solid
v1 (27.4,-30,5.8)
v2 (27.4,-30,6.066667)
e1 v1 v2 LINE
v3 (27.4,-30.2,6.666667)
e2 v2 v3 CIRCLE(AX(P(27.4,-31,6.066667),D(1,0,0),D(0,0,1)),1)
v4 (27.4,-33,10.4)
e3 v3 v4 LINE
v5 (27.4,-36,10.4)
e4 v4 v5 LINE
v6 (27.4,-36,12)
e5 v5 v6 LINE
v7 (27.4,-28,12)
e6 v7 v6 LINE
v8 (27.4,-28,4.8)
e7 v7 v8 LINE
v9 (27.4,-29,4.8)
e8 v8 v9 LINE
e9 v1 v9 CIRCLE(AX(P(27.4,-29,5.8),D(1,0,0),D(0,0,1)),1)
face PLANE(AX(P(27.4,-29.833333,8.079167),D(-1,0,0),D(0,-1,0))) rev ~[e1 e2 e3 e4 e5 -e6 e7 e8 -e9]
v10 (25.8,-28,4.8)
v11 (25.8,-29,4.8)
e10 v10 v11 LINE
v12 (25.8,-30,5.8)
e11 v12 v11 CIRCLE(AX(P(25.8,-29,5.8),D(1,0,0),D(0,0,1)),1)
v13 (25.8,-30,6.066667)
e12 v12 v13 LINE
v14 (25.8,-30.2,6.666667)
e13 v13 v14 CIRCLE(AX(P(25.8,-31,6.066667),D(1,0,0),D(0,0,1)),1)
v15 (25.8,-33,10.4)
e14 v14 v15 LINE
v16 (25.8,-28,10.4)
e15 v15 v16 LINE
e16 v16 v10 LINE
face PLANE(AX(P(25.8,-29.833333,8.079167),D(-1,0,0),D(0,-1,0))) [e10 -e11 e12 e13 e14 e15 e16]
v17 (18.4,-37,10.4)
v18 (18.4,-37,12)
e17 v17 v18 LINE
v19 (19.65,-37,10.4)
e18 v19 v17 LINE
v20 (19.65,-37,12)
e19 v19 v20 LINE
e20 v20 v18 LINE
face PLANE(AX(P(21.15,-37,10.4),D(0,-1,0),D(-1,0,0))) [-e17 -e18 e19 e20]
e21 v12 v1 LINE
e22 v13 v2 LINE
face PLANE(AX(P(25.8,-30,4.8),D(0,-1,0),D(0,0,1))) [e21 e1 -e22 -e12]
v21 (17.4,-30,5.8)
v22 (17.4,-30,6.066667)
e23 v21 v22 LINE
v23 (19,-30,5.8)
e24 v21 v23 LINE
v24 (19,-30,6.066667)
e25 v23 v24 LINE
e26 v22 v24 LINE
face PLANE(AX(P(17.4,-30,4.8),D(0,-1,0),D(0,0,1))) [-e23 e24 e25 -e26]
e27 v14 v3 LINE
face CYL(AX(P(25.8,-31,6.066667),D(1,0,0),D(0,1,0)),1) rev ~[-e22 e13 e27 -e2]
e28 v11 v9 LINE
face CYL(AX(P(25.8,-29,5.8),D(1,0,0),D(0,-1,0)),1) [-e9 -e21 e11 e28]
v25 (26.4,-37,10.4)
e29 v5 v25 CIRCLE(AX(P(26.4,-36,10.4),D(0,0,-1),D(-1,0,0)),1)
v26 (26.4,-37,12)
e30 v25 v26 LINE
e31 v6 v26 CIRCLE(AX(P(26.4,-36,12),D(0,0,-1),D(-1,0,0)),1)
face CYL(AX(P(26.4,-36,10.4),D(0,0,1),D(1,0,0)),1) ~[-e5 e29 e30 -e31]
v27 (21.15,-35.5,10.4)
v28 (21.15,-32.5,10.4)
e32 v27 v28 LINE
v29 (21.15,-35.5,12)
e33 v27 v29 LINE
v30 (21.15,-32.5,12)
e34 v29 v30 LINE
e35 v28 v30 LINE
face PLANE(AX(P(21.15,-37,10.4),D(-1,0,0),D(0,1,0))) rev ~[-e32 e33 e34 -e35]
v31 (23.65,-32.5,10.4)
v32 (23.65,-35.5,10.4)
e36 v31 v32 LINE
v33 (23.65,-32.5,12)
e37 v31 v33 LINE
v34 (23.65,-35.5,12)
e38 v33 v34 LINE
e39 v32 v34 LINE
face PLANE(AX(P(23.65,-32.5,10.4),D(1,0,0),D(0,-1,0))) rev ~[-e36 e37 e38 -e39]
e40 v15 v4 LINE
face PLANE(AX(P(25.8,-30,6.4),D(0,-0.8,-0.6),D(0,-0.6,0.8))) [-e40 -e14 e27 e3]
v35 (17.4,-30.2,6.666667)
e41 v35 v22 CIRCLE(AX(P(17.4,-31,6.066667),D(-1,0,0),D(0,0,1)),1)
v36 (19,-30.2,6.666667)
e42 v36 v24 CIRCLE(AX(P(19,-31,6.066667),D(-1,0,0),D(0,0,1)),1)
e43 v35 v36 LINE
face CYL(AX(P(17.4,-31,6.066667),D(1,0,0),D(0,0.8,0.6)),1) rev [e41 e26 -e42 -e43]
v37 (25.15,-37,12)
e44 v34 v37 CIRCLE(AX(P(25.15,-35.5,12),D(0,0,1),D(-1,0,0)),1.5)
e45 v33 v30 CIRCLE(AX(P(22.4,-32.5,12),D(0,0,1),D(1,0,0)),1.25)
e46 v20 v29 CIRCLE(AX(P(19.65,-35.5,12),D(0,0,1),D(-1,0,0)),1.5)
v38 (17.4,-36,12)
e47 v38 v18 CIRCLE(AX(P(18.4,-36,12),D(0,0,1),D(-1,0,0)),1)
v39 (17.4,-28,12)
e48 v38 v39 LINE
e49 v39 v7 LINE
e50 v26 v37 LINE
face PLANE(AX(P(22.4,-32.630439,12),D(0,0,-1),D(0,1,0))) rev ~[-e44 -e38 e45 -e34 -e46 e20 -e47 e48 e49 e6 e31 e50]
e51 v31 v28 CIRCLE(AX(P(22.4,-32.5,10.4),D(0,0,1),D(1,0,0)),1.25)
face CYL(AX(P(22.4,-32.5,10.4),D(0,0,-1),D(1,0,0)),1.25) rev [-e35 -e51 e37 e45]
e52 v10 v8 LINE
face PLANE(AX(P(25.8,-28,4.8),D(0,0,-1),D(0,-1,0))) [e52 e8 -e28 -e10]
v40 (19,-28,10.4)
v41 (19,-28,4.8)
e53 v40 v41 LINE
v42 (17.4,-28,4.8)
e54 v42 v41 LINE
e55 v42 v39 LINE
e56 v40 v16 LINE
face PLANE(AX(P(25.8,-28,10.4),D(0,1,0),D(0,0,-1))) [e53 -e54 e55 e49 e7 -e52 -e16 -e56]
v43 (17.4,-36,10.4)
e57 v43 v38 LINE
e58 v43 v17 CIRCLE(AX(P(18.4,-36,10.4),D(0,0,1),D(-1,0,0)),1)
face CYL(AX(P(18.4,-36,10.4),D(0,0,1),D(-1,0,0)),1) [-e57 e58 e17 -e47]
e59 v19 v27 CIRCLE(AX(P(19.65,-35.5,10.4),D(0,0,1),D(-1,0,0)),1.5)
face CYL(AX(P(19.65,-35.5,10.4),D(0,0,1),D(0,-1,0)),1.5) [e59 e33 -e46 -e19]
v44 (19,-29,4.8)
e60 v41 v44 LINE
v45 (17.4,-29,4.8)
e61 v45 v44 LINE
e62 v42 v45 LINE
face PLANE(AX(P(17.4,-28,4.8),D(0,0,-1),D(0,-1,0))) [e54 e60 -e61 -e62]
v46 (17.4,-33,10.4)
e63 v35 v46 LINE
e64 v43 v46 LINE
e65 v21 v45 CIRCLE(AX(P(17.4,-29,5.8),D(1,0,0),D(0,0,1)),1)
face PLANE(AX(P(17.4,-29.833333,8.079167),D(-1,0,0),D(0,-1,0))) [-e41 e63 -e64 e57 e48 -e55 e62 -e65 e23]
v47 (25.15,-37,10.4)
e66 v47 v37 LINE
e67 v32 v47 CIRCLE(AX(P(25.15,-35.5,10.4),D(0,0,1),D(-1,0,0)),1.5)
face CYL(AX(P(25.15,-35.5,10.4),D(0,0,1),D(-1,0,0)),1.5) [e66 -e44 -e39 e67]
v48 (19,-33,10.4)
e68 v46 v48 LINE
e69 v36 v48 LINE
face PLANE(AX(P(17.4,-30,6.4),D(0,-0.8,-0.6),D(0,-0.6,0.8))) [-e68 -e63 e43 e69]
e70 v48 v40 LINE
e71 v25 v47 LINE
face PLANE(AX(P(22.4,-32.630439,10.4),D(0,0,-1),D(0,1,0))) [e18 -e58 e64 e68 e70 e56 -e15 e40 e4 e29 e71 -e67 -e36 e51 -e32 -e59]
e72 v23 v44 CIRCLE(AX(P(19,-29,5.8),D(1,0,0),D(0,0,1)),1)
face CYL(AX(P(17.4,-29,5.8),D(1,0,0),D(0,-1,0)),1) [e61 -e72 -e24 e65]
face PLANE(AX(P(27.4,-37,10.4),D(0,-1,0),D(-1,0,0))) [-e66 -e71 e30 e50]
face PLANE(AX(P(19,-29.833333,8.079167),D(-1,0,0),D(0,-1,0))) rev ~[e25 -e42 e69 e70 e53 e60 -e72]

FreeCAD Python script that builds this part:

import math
import FreeCAD as App
import Part
import Sketcher

V = App.Vector
Q = App.Units.Quantity


def edges_at(feature, points):
    """Names of the edges that pass closest to the given points."""
    edges = feature.Shape.Edges
    near = lambda p: min(range(len(edges)), key=lambda i: edges[i].distToShape(Part.Vertex(*p))[0])
    return sorted({f"Edge{near(p) + 1}" for p in points})


def add_polygon(sketch, points):
    """Adds a closed chain of lines whose ends are joined by coincident constraints."""
    first, n = sketch.GeometryCount, len(points)
    for a, b in zip(points, points[1:] + points[:1]):
        sketch.addGeometry(Part.LineSegment(App.Vector(*a, 0), App.Vector(*b, 0)), False)
    for i in range(n):
        sketch.addConstraint(Sketcher.Constraint("Coincident", first + i, 2, first + (i + 1) % n, 1))

doc = App.newDocument("Part")
body = doc.addObject("PartDesign::Body", "Body")

# Sketch on XY plane
sketch1 = body.newObject("Sketcher::SketchObject", "Sketch")
sketch1.AttachmentSupport = (doc.getObject("XY_Plane"), [""])
sketch1.MapMode = "FlatFace"
sketch1.addGeometry([
    Part.LineSegment(V(4.5, 5, 0), V(-4.5, 5, 0)),  # 0
    Part.LineSegment(V(-4.5, 5, 0), V(-4.5, -5, 0)),  # 1
    Part.LineSegment(V(-4.5, -5, 0), V(4.5, -5, 0)),  # 2
    Part.LineSegment(V(4.5, -5, 0), V(4.5, -1.2, 0)),  # 3
    Part.LineSegment(V(4.5, -1.2, 0), V(0, -1.2, 0)),  # 4
    Part.ArcOfCircle(Part.Circle(V(0, 0, 0), V(0, 0, 1), 1.2), math.radians(90), math.radians(270)),  # 5
    Part.LineSegment(V(0, 1.2, 0), V(4.5, 1.2, 0)),  # 6
    Part.LineSegment(V(4.5, 1.2, 0), V(4.5, 5, 0)),  # 7
], False)
sketch1.addConstraint([
    Sketcher.Constraint("Coincident", 0, 2, 1, 1),
    Sketcher.Constraint("Coincident", 1, 2, 2, 1),
    Sketcher.Constraint("Coincident", 2, 2, 3, 1),
    Sketcher.Constraint("Coincident", 3, 2, 4, 1),
    Sketcher.Constraint("Tangent", 4, 2, 5, 2),
    Sketcher.Constraint("Tangent", 5, 1, 6, 1),
    Sketcher.Constraint("Coincident", 6, 2, 7, 1),
    Sketcher.Constraint("Coincident", 7, 2, 0, 1),
    Sketcher.Constraint("Horizontal", 0),
    Sketcher.Constraint("Vertical", 1),
    Sketcher.Constraint("Horizontal", 2),
    Sketcher.Constraint("Vertical", 3),
    Sketcher.Constraint("Horizontal", 4),
    Sketcher.Constraint("Horizontal", 6),
    Sketcher.Constraint("Vertical", 7),
    Sketcher.Constraint("Coincident", 5, 3, -1, 1),
    Sketcher.Constraint("Symmetric", 0, 2, 2, 2, -1, 1),
    Sketcher.Constraint("Vertical", 3, 2, 6, 2),
    Sketcher.Constraint("DistanceX", 0, 2, 0, 1, Q("9 mm")),
    Sketcher.Constraint("DistanceY", 1, 2, 1, 1, Q("10 mm")),
    Sketcher.Constraint("Radius", 5, Q("1.25 mm")),
])
pad1 = body.newObject("PartDesign::Pad", "Pad")
pad1.Profile = sketch1
pad1.Length = 1.6

# Sketch on XZ plane
sketch2 = body.newObject("Sketcher::SketchObject", "Sketch001")
sketch2.AttachmentSupport = (doc.getObject("XZ_Plane"), [""])
sketch2.MapMode = "FlatFace"
sketch2.AttachmentOffset = App.Placement(V(0, 0, 5), App.Rotation())
add_polygon(sketch2, [(-4.5, 0), (-4.5, -5.6), (-2.5, -5.6), (-2.5, -4), (0.5, 0)])  # lines 0-4
sketch2.addConstraint([
    Sketcher.Constraint("Vertical", 0),
    Sketcher.Constraint("Horizontal", 1),
    Sketcher.Constraint("Vertical", 2),
    Sketcher.Constraint("Horizontal", 4),
    Sketcher.Constraint("PointOnObject", 3, 2, -1),
    Sketcher.Constraint("DistanceX", 1, 1, 1, 2, Q("2 mm")),
    Sketcher.Constraint("DistanceX", 4, 2, 4, 1, Q("5 mm")),
    Sketcher.Constraint("Distance", 3, Q("5 mm")),
    Sketcher.Constraint("DistanceY", 0, 2, 0, 1, Q("5.6 mm")),
    Sketcher.Constraint("DistanceX", 0, 2, -1, 1, Q("4.5 mm")),
])
pad2 = body.newObject("PartDesign::Pad", "Pad001")
pad2.Profile = sketch2
pad2.Length = 1.6
pad2.Reversed = True
doc.recompute()

linearpattern = body.newObject("PartDesign::LinearPattern", "LinearPattern")
linearpattern.Originals = [pad2]
linearpattern.Direction = (doc.getObject("Y_Axis"), [""])
linearpattern.Mode = "offset"
linearpattern.Offset = 8.4
linearpattern.Occurrences = 2
body.Tip = linearpattern
doc.recompute()

fillet = body.newObject("PartDesign::Fillet", "Fillet")
fillet.Base = (linearpattern, edges_at(linearpattern, [(-2.5, -4.2, -5.6), (-2.5, 4.2, -5.6)]))
fillet.Radius = 1
doc.recompute()

fillet2 = body.newObject("PartDesign::Fillet", "Fillet001")
fillet2.Base = (fillet, edges_at(fillet, [(-2.5, -4.2, -4), (-2.5, 4.2, -4)]))
fillet2.Radius = 1
doc.recompute()

fillet3 = body.newObject("PartDesign::Fillet", "Fillet002")
fillet3.Base = (fillet2, edges_at(fillet2, [(4.5, -5, 0.8), (4.5, 5, 0.8)]))
fillet3.Radius = 1
doc.recompute()

fillet4 = body.newObject("PartDesign::Fillet", "Fillet003")
fillet4.Base = (fillet3, edges_at(fillet3, [(4.5, -1.25, 0.8), (4.5, 1.25, 0.8)]))
fillet4.Radius = 1.5
body2 = doc.addObject("PartDesign::Body", "Body001")
doc.recompute()

body.Placement = App.Placement(V(22.4, -32.5, 10.4), App.Rotation(V(0, 0, -1), 90))
boolean = body2.newObject("PartDesign::Boolean", "Boolean")
boolean.Type = "Fuse"
boolean.addObjects([body])

doc.recompute()
